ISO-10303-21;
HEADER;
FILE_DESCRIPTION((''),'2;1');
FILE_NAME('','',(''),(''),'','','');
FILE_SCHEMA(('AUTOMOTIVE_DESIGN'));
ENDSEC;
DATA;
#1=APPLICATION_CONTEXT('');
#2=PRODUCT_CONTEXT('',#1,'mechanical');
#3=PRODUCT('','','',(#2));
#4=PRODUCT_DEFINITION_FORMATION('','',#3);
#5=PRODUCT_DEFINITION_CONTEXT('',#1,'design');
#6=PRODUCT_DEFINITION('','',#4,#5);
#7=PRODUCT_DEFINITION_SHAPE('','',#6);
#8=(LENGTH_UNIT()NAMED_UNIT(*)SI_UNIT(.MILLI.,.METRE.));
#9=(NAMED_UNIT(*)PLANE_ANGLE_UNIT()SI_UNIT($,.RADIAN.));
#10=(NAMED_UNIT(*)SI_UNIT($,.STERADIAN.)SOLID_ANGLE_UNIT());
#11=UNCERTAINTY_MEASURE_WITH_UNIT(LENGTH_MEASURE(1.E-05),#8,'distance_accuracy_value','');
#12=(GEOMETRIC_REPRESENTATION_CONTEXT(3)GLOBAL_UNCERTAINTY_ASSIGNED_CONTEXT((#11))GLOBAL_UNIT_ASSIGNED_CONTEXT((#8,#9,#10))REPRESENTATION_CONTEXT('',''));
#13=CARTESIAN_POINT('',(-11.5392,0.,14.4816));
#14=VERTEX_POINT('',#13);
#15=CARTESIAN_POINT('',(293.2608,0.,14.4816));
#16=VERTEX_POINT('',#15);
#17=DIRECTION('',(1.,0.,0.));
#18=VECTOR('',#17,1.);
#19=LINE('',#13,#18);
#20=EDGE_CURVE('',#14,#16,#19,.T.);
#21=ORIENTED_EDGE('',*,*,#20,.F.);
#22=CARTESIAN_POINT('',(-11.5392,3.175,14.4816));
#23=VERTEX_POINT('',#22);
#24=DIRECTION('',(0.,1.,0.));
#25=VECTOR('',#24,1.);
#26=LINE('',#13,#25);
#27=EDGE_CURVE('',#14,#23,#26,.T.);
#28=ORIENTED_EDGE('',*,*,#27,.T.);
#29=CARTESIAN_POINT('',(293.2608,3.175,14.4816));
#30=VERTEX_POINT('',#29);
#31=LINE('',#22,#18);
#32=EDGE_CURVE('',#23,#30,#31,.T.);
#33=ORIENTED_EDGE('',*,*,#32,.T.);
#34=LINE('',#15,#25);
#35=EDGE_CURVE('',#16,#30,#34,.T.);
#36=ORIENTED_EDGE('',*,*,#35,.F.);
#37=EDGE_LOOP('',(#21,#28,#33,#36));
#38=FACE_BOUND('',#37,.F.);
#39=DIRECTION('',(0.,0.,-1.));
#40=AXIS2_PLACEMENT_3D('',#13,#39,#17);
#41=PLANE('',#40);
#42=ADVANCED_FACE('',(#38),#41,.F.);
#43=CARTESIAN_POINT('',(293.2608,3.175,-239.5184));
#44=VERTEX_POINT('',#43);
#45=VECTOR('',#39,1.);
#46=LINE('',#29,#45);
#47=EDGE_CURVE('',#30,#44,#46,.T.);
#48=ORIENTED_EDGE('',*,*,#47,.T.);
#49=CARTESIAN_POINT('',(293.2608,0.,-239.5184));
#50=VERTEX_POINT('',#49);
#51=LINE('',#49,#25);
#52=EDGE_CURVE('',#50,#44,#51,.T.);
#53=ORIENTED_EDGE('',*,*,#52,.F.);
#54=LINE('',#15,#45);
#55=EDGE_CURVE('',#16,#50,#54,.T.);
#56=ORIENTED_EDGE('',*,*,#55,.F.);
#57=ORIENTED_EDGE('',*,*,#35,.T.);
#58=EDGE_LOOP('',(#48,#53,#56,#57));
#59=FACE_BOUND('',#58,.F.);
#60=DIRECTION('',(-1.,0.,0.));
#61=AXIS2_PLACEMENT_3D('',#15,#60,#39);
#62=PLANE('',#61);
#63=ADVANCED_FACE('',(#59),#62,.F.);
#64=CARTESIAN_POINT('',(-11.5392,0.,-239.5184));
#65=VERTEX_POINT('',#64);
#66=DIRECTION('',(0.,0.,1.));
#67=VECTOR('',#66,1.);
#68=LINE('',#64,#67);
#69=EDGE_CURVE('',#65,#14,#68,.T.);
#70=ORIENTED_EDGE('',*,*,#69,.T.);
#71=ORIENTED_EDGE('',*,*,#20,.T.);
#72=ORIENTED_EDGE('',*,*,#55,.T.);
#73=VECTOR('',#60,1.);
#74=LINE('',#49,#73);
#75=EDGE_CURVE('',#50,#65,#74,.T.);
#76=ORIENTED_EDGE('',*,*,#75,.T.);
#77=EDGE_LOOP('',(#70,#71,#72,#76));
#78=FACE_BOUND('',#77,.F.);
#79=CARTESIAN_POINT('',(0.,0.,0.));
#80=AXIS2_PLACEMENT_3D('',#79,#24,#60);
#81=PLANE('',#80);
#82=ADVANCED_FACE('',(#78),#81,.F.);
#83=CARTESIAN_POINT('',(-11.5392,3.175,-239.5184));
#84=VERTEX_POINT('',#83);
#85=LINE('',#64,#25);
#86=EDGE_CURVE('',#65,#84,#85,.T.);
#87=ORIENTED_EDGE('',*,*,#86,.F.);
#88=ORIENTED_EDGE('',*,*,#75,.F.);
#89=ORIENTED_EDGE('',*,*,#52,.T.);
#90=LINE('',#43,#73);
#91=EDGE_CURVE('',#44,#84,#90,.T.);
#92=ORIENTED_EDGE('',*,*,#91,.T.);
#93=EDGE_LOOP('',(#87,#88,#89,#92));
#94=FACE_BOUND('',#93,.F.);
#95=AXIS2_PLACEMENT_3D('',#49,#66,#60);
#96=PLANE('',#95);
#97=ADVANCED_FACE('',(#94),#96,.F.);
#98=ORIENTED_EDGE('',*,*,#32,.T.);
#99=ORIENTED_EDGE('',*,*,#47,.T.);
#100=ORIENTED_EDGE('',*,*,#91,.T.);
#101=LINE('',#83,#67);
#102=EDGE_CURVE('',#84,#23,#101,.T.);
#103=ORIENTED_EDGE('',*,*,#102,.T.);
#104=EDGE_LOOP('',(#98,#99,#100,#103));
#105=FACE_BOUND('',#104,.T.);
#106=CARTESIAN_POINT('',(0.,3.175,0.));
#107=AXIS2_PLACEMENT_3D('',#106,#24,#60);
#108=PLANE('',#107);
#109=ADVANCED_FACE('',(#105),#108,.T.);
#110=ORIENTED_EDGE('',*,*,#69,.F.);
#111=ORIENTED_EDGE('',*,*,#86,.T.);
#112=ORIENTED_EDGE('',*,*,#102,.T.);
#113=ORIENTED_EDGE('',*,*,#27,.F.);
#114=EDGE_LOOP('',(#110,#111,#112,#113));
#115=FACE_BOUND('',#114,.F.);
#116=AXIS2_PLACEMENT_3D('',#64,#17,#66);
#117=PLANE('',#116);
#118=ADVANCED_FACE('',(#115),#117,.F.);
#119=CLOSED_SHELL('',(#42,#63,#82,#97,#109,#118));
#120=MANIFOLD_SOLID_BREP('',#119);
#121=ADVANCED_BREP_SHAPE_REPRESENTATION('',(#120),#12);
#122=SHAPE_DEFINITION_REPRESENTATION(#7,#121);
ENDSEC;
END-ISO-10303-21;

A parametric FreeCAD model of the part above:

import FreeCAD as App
import Part
import Sketcher
Q = App.Units.Quantity

doc = App.newDocument("Part")
params = doc.addObject("Spreadsheet::Sheet", "Params")
for row, (alias, value) in enumerate([
    ("sketch1_width", "12 in"),
    ("sketch1_height", "10 in"),
    ("pad1_length", "0.125 in"),
], start=1):
    params.set(f"A{row}", alias)
    params.set(f"B{row}", "=" + value)
    params.setAlias(f"B{row}", alias)

body = doc.addObject("PartDesign::Body", "Body")

sketch1 = doc.addObject("Sketcher::SketchObject", "Sketch")
body.addObject(sketch1)
sketch1.AttachmentSupport = (doc.XZ_Plane, [""])
sketch1.MapMode = "FlatFace"
sketch1.addGeometry(Part.LineSegment(App.Vector(-12, -240, 0), App.Vector(-12, 14, 0)), False)
sketch1.addGeometry(Part.LineSegment(App.Vector(-12, 14, 0), App.Vector(293, 14, 0)), False)
sketch1.addGeometry(Part.LineSegment(App.Vector(293, 14, 0), App.Vector(293, -240, 0)), False)
sketch1.addGeometry(Part.LineSegment(App.Vector(293, -240, 0), App.Vector(-12, -240, 0)), False)
sketch1.addConstraint(Sketcher.Constraint("Coincident", 0, 2, 1, 1))
sketch1.addConstraint(Sketcher.Constraint("Coincident", 1, 2, 2, 1))
sketch1.addConstraint(Sketcher.Constraint("Coincident", 2, 2, 3, 1))
sketch1.addConstraint(Sketcher.Constraint("Coincident", 3, 2, 0, 1))
sketch1.addConstraint(Sketcher.Constraint("Vertical", 0))
sketch1.addConstraint(Sketcher.Constraint("Horizontal", 1))
sketch1.addConstraint(Sketcher.Constraint("Vertical", 2))
sketch1.addConstraint(Sketcher.Constraint("Horizontal", 3))
sketch1.addConstraint(Sketcher.Constraint("DistanceX", 1, 1, 1, 2, Q("12 in")))
sketch1.addConstraint(Sketcher.Constraint("DistanceY", 0, 1, 0, 2, Q("10 in")))
sketch1.addConstraint(Sketcher.Constraint("DistanceX", 0, 2, -1, 1, Q("0.4543 in")))
sketch1.addConstraint(Sketcher.Constraint("DistanceY", -1, 1, 0, 2, 14.4816))
sketch1.setExpression("Constraints[8]", "Params.sketch1_width")
sketch1.setExpression("Constraints[9]", "Params.sketch1_height")
pad1 = doc.addObject("PartDesign::Pad", "Pad")
body.addObject(pad1)
pad1.Profile = sketch1
pad1.setExpression("Length", "Params.pad1_length")
pad1.Reversed = True

doc.recompute()
